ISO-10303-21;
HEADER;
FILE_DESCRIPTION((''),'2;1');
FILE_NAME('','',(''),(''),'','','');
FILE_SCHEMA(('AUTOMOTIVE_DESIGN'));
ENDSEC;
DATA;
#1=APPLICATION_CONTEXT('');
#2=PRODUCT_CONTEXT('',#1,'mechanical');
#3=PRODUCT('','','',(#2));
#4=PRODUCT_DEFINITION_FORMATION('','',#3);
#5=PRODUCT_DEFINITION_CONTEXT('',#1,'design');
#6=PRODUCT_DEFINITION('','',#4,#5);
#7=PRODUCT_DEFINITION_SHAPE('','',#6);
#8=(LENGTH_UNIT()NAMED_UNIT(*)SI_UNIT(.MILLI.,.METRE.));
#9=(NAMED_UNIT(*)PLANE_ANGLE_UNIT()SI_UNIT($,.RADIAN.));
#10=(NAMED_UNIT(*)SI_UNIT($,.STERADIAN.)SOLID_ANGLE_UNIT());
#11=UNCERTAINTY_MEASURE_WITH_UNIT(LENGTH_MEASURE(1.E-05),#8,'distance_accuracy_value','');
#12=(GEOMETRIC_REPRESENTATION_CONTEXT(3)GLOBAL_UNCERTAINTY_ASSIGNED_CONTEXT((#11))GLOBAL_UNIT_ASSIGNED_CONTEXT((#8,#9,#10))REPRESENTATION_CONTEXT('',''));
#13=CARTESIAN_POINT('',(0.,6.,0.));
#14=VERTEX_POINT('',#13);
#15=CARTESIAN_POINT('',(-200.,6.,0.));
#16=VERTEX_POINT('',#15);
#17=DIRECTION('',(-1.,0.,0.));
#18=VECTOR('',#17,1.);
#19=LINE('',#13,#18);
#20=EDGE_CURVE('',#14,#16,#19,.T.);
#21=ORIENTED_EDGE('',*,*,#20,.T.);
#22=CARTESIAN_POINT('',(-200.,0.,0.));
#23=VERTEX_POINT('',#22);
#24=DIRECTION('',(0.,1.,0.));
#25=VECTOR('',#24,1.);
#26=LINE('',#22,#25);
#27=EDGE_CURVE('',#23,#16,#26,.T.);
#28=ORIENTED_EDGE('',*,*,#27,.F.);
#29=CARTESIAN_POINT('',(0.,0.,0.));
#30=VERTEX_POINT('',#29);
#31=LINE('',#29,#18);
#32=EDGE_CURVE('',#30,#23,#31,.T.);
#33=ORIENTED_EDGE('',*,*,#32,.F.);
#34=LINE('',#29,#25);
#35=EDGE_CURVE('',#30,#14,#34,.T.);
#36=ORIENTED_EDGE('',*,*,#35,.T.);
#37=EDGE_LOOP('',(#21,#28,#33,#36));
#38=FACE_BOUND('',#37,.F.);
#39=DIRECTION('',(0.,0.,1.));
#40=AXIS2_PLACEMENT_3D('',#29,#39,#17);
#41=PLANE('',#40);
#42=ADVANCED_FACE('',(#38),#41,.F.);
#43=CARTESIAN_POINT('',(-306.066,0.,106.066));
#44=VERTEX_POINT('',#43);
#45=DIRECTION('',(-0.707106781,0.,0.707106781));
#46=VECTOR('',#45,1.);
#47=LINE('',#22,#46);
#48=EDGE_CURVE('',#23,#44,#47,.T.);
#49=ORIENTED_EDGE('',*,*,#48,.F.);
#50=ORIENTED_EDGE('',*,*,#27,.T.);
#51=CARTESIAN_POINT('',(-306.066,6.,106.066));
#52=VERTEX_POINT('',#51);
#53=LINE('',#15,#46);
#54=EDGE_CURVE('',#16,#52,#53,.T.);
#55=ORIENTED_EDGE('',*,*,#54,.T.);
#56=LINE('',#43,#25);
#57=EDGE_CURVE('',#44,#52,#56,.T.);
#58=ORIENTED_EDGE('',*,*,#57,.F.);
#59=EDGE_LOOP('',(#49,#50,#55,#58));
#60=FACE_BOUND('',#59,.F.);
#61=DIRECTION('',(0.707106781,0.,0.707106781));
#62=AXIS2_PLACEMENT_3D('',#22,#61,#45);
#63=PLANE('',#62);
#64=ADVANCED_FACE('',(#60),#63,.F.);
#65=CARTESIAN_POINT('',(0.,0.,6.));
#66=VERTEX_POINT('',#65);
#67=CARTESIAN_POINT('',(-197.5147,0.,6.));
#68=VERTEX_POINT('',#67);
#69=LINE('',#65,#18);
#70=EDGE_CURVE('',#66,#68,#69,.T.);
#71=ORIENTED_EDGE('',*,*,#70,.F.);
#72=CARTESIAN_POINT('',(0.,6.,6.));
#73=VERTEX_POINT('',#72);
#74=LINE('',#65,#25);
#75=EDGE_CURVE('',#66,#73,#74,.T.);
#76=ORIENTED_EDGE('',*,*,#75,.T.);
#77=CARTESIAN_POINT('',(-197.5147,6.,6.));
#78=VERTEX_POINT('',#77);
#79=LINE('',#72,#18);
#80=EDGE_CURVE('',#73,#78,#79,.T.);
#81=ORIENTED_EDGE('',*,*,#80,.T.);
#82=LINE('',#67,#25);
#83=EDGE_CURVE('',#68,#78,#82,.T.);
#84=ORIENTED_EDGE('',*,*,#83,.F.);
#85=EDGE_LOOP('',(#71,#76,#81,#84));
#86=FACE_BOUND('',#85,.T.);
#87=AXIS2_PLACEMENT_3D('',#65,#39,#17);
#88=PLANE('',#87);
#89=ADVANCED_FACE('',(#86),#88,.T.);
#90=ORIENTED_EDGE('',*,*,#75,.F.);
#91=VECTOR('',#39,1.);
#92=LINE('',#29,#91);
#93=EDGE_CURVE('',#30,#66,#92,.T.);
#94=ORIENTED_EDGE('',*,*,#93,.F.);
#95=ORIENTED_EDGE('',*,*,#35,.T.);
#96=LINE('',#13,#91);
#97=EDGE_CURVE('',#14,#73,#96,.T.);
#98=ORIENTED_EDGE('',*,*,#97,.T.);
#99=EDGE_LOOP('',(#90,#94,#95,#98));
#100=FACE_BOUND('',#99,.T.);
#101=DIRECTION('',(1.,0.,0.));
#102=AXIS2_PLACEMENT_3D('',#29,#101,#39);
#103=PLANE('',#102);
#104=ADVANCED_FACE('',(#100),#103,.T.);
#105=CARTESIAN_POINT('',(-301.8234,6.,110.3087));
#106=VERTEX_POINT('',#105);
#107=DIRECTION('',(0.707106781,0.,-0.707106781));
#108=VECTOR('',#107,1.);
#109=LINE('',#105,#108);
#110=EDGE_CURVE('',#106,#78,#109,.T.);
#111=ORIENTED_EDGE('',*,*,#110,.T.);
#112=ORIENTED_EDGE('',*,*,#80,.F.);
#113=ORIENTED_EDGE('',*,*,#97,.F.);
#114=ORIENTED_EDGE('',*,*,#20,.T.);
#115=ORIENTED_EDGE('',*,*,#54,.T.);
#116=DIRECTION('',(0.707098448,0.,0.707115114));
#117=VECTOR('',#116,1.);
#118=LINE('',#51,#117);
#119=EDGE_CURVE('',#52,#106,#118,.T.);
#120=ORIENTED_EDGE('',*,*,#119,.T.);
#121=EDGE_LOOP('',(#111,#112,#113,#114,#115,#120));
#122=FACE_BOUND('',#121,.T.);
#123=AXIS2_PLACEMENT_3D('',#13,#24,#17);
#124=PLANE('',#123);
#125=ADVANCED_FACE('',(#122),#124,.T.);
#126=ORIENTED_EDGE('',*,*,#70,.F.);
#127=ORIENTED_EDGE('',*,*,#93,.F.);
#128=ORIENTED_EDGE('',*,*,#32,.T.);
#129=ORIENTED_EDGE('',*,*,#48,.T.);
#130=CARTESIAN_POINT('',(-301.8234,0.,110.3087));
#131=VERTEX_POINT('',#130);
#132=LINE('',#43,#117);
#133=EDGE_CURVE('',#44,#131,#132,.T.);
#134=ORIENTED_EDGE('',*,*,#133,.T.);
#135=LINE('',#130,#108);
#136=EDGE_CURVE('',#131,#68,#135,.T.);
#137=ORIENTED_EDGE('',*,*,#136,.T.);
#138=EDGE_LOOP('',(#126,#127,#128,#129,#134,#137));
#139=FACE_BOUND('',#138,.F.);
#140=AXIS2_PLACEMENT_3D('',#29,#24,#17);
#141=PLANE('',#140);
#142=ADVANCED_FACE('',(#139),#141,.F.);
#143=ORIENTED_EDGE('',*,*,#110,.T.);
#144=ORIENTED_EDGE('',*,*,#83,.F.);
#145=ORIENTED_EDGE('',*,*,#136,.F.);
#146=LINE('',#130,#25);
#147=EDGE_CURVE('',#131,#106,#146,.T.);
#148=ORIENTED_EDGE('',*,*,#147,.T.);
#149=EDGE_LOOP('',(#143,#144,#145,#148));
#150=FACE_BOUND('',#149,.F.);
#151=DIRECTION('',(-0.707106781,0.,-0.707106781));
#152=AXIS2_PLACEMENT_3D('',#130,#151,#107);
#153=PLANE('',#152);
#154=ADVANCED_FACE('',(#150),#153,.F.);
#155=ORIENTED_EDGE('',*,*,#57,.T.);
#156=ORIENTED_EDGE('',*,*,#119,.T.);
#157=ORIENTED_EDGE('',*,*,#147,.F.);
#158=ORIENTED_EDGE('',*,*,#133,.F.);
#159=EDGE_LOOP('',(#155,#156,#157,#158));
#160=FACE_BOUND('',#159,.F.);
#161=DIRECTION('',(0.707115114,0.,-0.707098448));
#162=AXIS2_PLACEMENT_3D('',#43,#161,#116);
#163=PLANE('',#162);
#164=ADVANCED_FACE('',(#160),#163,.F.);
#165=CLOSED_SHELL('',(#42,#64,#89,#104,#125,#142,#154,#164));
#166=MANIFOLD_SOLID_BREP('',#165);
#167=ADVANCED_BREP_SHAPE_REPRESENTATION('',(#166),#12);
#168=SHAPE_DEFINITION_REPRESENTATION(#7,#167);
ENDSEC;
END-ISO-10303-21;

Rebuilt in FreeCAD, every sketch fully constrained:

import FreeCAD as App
import Part
import Sketcher
from FreeCAD import Vector
Q = App.Units.Quantity

doc = App.newDocument("Part")
body = doc.addObject("PartDesign::Body", "Body")

# Sketch on XZ plane
sketch1 = body.newObject("Sketcher::SketchObject", "Sketch")
sketch1.AttachmentSupport = (doc.getObject("XZ_Plane"), [""])
sketch1.MapMode = "FlatFace"
sketch1.addGeometry(Part.LineSegment(Vector(0, 6, 0), Vector(0, 0, 0)), False)
sketch1.addGeometry(Part.LineSegment(Vector(0, 0, 0), Vector(-200, 0, 0)), False)
sketch1.addGeometry(Part.LineSegment(Vector(-200, 0, 0), Vector(-306, 106, 0)), False)
sketch1.addGeometry(Part.LineSegment(Vector(-306, 106, 0), Vector(-302, 110, 0)), False)
sketch1.addGeometry(Part.LineSegment(Vector(-302, 110, 0), Vector(-198, 6, 0)), False)
sketch1.addGeometry(Part.LineSegment(Vector(-198, 6, 0), Vector(0, 6, 0)), False)
sketch1.addConstraint(Sketcher.Constraint("Coincident", 0, 2, 1, 1))
sketch1.addConstraint(Sketcher.Constraint("Coincident", 1, 2, 2, 1))
sketch1.addConstraint(Sketcher.Constraint("Coincident", 2, 2, 3, 1))
sketch1.addConstraint(Sketcher.Constraint("Coincident", 3, 2, 4, 1))
sketch1.addConstraint(Sketcher.Constraint("Coincident", 4, 2, 5, 1))
sketch1.addConstraint(Sketcher.Constraint("Coincident", 5, 2, 0, 1))
sketch1.addConstraint(Sketcher.Constraint("Vertical", 0))
sketch1.addConstraint(Sketcher.Constraint("Horizontal", 1))
sketch1.addConstraint(Sketcher.Constraint("Horizontal", 5))
sketch1.addConstraint(Sketcher.Constraint("Coincident", 0, 2, -1, 1))
sketch1.addConstraint(Sketcher.Constraint("Perpendicular", 2, 3))
sketch1.addConstraint(Sketcher.Constraint("Perpendicular", 3, 4))
sketch1.addConstraint(Sketcher.Constraint("DistanceX", 1, 2, 1, 1, Q("200 mm")))
sketch1.addConstraint(Sketcher.Constraint("DistanceY", 0, 2, 0, 1, Q("6 mm")))
sketch1.addConstraint(Sketcher.Constraint("Angle", 2, Q("135 deg")))
sketch1.addConstraint(Sketcher.Constraint("Distance", 2, Q("150 mm")))
sketch1.addConstraint(Sketcher.Constraint("Distance", 3, Q("6 mm")))
pad1 = body.newObject("PartDesign::Pad", "Pad")
pad1.Profile = sketch1
pad1.Length = 6
pad1.Reversed = True

doc.recompute()
